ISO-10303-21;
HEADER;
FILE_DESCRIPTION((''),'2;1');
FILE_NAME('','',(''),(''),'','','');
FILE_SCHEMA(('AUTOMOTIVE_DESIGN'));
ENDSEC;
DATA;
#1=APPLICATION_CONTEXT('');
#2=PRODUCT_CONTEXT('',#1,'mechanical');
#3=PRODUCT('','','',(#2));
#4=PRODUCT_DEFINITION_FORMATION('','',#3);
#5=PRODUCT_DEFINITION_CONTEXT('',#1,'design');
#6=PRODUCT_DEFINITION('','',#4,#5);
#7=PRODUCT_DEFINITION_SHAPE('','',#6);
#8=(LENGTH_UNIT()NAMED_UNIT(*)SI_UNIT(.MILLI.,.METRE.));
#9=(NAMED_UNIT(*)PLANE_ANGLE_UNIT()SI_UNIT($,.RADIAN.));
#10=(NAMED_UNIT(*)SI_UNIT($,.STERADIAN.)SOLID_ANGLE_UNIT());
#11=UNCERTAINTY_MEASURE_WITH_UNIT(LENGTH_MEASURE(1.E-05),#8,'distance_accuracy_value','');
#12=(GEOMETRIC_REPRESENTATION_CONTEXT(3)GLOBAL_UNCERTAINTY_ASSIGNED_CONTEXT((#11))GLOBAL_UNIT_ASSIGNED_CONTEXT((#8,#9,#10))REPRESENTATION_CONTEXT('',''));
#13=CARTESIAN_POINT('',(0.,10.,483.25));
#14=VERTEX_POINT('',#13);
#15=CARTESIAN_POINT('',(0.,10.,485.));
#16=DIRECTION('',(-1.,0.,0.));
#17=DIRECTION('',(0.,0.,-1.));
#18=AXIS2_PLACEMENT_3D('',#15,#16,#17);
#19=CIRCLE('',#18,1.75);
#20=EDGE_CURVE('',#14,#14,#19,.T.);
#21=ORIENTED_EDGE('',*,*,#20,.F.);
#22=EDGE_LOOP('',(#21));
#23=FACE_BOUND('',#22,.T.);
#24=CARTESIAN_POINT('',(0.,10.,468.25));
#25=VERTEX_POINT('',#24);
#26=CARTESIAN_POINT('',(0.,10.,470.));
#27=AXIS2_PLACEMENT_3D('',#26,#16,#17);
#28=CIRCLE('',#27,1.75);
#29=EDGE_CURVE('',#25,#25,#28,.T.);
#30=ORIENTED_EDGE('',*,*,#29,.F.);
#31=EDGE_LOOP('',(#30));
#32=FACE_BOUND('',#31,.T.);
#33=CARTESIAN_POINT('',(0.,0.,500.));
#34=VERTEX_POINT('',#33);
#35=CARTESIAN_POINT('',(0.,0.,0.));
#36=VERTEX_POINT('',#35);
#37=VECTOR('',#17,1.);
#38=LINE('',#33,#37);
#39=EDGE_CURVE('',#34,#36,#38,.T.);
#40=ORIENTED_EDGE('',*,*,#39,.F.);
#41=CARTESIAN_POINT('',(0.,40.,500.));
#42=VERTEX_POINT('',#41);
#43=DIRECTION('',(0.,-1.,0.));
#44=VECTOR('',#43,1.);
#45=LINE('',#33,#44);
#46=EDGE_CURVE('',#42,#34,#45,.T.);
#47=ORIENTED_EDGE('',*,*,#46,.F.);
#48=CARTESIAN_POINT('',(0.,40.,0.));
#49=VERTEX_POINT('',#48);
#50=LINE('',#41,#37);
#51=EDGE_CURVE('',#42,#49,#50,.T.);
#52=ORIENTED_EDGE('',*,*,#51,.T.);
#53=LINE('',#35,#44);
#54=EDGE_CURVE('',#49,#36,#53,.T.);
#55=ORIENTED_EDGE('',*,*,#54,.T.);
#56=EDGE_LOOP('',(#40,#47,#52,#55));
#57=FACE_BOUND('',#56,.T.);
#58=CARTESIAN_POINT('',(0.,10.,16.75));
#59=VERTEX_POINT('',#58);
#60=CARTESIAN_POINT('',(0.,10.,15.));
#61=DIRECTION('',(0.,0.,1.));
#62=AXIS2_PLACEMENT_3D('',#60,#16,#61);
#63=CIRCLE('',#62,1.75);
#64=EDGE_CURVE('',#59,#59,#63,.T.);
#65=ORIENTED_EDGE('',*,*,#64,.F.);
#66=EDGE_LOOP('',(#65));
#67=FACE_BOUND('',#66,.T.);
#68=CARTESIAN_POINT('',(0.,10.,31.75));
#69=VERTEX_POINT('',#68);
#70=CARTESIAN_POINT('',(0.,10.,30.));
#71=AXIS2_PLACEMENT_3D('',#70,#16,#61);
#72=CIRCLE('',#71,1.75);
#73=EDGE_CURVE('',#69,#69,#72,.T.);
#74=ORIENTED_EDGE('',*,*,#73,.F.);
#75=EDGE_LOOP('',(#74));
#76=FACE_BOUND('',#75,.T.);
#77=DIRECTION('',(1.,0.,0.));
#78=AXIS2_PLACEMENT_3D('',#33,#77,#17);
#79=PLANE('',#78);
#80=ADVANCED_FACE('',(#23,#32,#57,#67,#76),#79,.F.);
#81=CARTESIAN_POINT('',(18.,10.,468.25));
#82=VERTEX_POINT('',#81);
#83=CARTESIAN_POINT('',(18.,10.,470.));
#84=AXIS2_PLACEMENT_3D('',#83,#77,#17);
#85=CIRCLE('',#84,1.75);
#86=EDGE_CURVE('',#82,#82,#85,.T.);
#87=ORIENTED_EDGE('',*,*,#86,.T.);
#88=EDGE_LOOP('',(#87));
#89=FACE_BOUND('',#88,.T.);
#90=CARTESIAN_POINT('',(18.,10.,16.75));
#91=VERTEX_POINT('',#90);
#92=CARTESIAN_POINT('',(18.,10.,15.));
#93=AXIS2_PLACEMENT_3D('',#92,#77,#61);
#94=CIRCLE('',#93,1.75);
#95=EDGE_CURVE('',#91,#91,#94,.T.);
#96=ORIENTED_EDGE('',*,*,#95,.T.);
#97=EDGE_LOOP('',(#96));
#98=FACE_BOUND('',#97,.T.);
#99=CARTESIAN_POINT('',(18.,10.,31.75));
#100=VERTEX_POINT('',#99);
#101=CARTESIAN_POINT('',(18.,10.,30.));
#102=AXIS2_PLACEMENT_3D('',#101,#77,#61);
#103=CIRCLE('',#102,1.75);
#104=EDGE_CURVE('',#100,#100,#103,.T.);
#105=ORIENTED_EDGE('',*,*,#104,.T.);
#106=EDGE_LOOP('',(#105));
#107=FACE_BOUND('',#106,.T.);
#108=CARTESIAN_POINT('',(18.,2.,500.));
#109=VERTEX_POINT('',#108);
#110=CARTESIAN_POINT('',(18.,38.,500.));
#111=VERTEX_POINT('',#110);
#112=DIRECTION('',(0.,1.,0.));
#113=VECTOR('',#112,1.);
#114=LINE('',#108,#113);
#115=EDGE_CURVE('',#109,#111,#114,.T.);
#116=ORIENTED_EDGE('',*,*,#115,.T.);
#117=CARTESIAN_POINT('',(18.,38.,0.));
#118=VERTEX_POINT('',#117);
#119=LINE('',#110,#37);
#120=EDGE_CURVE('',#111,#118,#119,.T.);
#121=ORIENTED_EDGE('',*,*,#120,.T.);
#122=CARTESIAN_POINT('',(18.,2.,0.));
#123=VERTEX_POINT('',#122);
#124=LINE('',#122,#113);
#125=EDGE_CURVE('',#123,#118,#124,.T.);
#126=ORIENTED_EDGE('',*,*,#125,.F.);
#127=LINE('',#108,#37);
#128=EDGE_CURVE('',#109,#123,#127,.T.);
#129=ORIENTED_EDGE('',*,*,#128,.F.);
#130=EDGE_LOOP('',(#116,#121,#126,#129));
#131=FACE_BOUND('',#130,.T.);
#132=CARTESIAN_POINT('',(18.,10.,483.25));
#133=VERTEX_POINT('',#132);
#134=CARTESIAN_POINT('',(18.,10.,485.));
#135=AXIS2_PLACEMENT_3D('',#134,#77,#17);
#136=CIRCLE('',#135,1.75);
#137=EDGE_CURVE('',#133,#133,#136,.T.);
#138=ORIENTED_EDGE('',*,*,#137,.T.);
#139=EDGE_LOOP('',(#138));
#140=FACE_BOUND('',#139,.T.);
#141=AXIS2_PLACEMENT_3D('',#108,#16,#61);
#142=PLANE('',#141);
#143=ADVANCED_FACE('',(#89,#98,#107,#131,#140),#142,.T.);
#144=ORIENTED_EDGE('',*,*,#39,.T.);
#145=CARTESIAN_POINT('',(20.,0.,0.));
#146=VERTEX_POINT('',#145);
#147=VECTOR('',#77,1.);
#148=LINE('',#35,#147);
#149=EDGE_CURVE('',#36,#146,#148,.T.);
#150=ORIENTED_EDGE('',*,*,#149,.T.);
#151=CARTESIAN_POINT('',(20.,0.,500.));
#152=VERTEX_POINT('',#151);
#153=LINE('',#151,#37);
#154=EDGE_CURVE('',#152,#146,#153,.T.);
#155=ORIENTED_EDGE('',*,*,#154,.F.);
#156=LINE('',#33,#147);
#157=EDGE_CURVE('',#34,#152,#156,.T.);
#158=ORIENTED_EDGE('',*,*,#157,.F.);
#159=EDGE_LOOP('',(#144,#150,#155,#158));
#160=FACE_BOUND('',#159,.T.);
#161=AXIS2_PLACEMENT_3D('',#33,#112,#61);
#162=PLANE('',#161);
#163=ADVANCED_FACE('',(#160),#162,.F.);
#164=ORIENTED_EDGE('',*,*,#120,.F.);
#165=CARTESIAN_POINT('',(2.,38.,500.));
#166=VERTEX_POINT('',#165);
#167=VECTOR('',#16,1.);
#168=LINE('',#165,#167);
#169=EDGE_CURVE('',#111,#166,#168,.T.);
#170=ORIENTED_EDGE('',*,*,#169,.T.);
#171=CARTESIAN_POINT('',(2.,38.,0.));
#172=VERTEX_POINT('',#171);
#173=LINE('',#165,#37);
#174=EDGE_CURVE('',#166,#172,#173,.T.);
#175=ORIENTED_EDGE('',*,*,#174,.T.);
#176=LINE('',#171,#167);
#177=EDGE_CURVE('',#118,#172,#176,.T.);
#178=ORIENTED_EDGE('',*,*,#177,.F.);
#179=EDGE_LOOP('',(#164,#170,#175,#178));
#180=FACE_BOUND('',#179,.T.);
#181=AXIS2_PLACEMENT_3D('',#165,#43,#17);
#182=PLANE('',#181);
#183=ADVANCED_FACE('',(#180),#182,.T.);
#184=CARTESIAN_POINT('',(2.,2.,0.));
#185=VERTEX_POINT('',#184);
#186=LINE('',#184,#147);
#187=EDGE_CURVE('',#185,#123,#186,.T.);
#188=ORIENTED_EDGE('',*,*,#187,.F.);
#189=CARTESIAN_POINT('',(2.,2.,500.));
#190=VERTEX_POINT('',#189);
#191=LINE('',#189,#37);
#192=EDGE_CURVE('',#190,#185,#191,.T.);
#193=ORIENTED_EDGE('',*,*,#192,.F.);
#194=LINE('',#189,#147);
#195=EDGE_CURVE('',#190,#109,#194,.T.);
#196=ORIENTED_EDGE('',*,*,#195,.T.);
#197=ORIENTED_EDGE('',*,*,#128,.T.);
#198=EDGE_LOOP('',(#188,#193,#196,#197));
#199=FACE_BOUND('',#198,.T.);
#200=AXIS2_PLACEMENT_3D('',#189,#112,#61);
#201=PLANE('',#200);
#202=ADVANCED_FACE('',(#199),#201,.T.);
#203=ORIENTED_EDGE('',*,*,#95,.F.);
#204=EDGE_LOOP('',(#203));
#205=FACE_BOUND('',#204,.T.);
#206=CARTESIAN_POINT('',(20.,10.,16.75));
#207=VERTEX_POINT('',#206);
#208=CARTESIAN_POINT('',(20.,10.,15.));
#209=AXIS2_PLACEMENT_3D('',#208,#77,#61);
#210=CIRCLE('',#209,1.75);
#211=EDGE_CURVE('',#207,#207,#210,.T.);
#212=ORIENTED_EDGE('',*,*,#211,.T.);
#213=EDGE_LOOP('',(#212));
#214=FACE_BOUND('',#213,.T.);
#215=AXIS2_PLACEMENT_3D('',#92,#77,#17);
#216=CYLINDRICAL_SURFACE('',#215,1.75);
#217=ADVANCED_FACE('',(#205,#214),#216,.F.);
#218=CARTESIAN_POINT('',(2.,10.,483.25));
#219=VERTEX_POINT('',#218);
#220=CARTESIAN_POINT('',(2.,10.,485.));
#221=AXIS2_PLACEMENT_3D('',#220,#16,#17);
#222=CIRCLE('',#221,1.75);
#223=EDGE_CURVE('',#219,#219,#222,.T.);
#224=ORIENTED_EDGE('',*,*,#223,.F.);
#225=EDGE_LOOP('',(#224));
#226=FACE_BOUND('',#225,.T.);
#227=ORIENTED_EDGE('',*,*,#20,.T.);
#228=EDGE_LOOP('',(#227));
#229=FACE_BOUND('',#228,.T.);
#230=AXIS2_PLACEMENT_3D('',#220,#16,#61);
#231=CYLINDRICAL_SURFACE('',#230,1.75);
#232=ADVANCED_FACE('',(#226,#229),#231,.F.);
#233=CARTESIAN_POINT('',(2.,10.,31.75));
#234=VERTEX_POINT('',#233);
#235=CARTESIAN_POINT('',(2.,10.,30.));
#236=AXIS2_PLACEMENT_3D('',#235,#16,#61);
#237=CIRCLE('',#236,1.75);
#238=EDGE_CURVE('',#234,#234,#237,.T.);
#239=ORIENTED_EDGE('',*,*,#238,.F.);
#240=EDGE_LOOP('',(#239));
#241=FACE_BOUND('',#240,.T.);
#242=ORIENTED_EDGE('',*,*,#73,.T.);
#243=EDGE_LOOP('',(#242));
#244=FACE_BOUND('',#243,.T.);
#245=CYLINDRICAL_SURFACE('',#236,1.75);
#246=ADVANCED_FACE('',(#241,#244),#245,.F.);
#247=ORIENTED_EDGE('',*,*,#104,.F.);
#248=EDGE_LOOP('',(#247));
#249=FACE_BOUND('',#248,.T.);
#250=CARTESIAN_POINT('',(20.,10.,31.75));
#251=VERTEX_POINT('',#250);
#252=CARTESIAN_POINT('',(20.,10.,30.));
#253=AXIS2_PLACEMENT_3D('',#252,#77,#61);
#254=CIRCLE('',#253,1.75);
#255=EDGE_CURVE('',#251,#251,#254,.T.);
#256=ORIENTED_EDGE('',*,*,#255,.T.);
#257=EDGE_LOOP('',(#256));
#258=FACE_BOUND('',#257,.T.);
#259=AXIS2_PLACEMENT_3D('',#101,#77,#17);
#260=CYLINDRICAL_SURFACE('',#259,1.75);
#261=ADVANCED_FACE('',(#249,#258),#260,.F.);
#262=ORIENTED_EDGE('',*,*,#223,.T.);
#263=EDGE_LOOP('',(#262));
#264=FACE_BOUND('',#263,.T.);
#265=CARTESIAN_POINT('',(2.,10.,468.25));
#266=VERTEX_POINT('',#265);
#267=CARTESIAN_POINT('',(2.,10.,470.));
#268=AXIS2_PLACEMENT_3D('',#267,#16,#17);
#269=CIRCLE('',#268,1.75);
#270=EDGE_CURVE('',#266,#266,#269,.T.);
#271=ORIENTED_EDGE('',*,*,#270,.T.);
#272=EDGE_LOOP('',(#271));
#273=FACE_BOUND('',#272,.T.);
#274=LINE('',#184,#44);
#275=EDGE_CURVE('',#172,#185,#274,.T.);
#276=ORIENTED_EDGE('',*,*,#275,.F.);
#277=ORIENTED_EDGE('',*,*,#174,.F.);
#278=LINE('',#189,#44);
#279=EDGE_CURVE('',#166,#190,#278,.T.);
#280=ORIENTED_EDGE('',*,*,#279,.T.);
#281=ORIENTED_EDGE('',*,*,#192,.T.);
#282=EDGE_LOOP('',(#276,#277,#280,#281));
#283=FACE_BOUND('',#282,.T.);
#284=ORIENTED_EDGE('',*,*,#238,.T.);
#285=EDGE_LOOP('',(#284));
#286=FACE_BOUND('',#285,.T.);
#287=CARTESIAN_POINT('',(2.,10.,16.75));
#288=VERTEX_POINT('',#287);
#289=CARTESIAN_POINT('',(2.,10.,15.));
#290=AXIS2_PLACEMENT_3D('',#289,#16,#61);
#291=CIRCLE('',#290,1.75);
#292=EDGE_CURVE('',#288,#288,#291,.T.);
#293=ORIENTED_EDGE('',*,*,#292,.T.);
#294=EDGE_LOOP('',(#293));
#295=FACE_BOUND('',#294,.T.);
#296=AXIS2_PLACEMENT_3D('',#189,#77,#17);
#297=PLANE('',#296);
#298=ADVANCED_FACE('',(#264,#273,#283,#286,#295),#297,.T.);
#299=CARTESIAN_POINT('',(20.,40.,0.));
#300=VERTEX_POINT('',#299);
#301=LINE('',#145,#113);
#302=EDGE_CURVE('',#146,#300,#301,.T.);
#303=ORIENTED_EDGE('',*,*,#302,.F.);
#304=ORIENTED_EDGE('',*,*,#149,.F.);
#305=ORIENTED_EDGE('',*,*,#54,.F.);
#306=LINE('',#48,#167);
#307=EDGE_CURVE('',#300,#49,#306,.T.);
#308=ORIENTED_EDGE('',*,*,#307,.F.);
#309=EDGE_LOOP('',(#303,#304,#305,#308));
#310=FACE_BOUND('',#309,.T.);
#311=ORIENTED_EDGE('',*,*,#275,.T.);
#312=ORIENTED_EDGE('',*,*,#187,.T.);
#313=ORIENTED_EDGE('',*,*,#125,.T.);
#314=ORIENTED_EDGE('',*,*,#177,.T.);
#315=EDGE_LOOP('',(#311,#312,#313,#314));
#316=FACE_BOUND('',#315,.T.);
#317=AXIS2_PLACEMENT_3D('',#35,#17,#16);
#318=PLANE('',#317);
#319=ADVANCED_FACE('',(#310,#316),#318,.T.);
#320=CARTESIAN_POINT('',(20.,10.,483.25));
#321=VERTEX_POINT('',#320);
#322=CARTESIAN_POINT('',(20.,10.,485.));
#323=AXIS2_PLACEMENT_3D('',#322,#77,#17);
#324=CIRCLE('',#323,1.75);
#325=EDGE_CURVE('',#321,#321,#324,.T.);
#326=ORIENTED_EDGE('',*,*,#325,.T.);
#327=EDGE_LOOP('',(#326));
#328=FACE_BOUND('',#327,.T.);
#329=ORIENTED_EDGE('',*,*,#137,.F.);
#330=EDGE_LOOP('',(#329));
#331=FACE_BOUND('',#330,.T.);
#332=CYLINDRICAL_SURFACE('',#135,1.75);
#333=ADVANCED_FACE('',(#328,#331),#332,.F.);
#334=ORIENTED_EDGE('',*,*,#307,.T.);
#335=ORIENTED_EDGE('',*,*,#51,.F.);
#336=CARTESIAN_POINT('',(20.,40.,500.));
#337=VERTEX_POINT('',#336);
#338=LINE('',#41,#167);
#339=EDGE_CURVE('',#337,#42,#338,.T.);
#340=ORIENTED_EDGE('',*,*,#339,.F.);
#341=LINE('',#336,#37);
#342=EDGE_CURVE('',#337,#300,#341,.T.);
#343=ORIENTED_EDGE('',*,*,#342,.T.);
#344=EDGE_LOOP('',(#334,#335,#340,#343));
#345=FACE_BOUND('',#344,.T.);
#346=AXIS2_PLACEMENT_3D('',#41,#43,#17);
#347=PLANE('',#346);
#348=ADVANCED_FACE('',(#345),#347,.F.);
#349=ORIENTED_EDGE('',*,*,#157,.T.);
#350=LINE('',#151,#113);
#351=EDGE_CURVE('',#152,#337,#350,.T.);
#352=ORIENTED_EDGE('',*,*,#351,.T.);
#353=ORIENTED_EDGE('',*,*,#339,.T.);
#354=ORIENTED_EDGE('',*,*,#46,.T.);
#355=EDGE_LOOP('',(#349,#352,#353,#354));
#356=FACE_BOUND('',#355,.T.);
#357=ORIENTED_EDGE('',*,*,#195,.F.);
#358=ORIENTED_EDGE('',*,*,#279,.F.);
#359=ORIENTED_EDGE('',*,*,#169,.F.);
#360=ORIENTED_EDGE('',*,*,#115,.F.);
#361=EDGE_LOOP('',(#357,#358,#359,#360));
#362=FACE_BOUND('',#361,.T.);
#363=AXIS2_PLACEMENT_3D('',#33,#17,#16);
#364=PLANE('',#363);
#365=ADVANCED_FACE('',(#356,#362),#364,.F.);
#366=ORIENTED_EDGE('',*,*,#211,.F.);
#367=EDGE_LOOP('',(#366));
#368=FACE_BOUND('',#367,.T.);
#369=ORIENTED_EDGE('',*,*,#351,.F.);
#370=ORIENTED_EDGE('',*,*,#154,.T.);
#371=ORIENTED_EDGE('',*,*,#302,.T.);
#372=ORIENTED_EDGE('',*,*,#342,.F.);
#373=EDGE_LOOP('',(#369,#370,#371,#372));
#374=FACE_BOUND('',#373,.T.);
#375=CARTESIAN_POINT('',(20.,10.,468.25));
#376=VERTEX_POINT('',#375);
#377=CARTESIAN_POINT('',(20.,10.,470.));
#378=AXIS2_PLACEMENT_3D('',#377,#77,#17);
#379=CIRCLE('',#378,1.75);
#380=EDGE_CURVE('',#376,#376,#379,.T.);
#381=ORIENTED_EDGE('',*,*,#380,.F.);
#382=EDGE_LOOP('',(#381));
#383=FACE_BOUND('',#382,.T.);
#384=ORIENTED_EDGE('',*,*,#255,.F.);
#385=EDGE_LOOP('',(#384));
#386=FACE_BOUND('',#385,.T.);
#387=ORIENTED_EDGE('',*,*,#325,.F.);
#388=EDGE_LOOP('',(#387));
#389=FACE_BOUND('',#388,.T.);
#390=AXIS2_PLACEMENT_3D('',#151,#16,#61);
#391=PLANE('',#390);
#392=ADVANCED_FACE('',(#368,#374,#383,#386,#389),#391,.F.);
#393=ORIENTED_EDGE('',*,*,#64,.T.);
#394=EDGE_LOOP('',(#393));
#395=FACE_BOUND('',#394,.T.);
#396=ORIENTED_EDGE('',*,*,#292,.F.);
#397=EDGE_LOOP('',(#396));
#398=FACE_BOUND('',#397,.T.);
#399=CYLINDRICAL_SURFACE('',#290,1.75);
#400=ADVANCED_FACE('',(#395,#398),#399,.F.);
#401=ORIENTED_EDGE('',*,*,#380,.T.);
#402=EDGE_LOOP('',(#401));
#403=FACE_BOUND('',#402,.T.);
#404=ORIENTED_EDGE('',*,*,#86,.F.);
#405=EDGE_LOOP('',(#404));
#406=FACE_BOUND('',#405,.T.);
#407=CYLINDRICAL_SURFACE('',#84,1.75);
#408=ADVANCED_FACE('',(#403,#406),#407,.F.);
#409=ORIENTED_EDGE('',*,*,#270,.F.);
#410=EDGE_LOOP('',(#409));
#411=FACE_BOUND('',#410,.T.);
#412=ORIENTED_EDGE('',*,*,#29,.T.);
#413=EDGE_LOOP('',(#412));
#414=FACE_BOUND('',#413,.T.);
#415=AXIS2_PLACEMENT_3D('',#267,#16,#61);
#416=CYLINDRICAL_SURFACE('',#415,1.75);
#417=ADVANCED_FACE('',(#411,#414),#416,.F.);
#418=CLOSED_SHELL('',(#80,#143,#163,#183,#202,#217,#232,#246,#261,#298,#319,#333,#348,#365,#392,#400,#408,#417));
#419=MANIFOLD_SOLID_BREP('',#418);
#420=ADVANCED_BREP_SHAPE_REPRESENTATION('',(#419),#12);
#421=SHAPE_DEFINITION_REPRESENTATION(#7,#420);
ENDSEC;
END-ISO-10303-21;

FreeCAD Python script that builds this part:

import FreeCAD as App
import Part
import Sketcher

V = App.Vector
Q = App.Units.Quantity

doc = App.newDocument("Part")
body = doc.addObject("PartDesign::Body", "Body")

# Sketch on XY plane
sketch1 = body.newObject("Sketcher::SketchObject", "Sketch")
sketch1.AttachmentSupport = (doc.getObject("XY_Plane"), [""])
sketch1.MapMode = "FlatFace"
sketch1.addGeometry(Part.LineSegment(V(0, 40, 0), V(0, 0, 0)), False)
sketch1.addGeometry(Part.LineSegment(V(0, 0, 0), V(20, 0, 0)), False)
sketch1.addGeometry(Part.LineSegment(V(20, 0, 0), V(20, 40, 0)), False)
sketch1.addGeometry(Part.LineSegment(V(20, 40, 0), V(0, 40, 0)), False)
sketch1.addGeometry(Part.LineSegment(V(18, 2, 0), V(2, 2, 0)), False)
sketch1.addGeometry(Part.LineSegment(V(2, 2, 0), V(2, 38, 0)), False)
sketch1.addGeometry(Part.LineSegment(V(2, 38, 0), V(18, 38, 0)), False)
sketch1.addGeometry(Part.LineSegment(V(18, 38, 0), V(18, 2, 0)), False)
sketch1.addConstraint(Sketcher.Constraint("Coincident", 0, 2, 1, 1))
sketch1.addConstraint(Sketcher.Constraint("Coincident", 1, 2, 2, 1))
sketch1.addConstraint(Sketcher.Constraint("Coincident", 2, 2, 3, 1))
sketch1.addConstraint(Sketcher.Constraint("Coincident", 3, 2, 0, 1))
sketch1.addConstraint(Sketcher.Constraint("Coincident", 4, 2, 5, 1))
sketch1.addConstraint(Sketcher.Constraint("Coincident", 5, 2, 6, 1))
sketch1.addConstraint(Sketcher.Constraint("Coincident", 6, 2, 7, 1))
sketch1.addConstraint(Sketcher.Constraint("Coincident", 7, 2, 4, 1))
sketch1.addConstraint(Sketcher.Constraint("Vertical", 0))
sketch1.addConstraint(Sketcher.Constraint("Horizontal", 1))
sketch1.addConstraint(Sketcher.Constraint("Vertical", 2))
sketch1.addConstraint(Sketcher.Constraint("Horizontal", 3))
sketch1.addConstraint(Sketcher.Constraint("Horizontal", 4))
sketch1.addConstraint(Sketcher.Constraint("Vertical", 5))
sketch1.addConstraint(Sketcher.Constraint("Horizontal", 6))
sketch1.addConstraint(Sketcher.Constraint("Vertical", 7))
sketch1.addConstraint(Sketcher.Constraint("Coincident", 0, 2, -1, 1))
sketch1.addConstraint(Sketcher.Constraint("DistanceX", 1, 1, 1, 2, Q("20 mm")))
sketch1.addConstraint(Sketcher.Constraint("DistanceX", 4, 2, 4, 1, Q("16 mm")))
sketch1.addConstraint(Sketcher.Constraint("DistanceY", 0, 2, 0, 1, Q("40 mm")))
sketch1.addConstraint(Sketcher.Constraint("DistanceY", 5, 1, 5, 2, Q("36 mm")))
sketch1.addConstraint(Sketcher.Constraint("DistanceX", -1, 1, 4, 2, Q("2 mm")))
sketch1.addConstraint(Sketcher.Constraint("DistanceY", -1, 1, 4, 2, Q("2 mm")))
pad1 = body.newObject("PartDesign::Pad", "Pad")
pad1.Profile = sketch1
pad1.Length = 500

# Sketch on YZ plane
sketch2 = body.newObject("Sketcher::SketchObject", "Sketch001")
sketch2.AttachmentSupport = (doc.getObject("YZ_Plane"), [""])
sketch2.MapMode = "FlatFace"
sketch2.addGeometry(Part.Circle(V(10, 15, 0), V(0, 0, 1), 1.8), False)
sketch2.addGeometry(Part.Circle(V(10, 30, 0), V(0, 0, 1), 1.8), False)
sketch2.addGeometry(Part.Circle(V(10, 485, 0), V(0, 0, 1), 1.8), False)
sketch2.addGeometry(Part.Circle(V(10, 470, 0), V(0, 0, 1), 1.8), False)
sketch2.addConstraint(Sketcher.Constraint("Equal", 0, 1))
sketch2.addConstraint(Sketcher.Constraint("Equal", 1, 2))
sketch2.addConstraint(Sketcher.Constraint("Equal", 2, 3))
sketch2.addConstraint(Sketcher.Constraint("Vertical", 0, 3, 1, 3))
sketch2.addConstraint(Sketcher.Constraint("Vertical", 1, 3, 2, 3))
sketch2.addConstraint(Sketcher.Constraint("Vertical", 2, 3, 3, 3))
sketch2.addConstraint(Sketcher.Constraint("Diameter", 0, Q("3.5 mm")))
sketch2.addConstraint(Sketcher.Constraint("DistanceX", -1, 1, 0, 3, Q("10 mm")))
sketch2.addConstraint(Sketcher.Constraint("DistanceY", -1, 1, 0, 3, Q("15 mm")))
sketch2.addConstraint(Sketcher.Constraint("DistanceY", -1, 1, 1, 3, Q("30 mm")))
sketch2.addConstraint(Sketcher.Constraint("DistanceY", -1, 1, 2, 3, Q("485 mm")))
sketch2.addConstraint(Sketcher.Constraint("DistanceY", -1, 1, 3, 3, Q("470 mm")))
pocket1 = body.newObject("PartDesign::Pocket", "Pocket")
pocket1.Profile = sketch2
pocket1.Length = 2
pocket1.Reversed = True

# Sketch on YZ plane
sketch3 = body.newObject("Sketcher::SketchObject", "Sketch002")
sketch3.AttachmentSupport = (doc.getObject("YZ_Plane"), [""])
sketch3.MapMode = "FlatFace"
sketch3.AttachmentOffset = App.Placement(V(0, 0, 18), App.Rotation())
sketch3.addGeometry(Part.Circle(V(10, 15, 0), V(0, 0, 1), 1.8), False)
sketch3.addGeometry(Part.Circle(V(10, 30, 0), V(0, 0, 1), 1.8), False)
sketch3.addGeometry(Part.Circle(V(10, 485, 0), V(0, 0, 1), 1.8), False)
sketch3.addGeometry(Part.Circle(V(10, 470, 0), V(0, 0, 1), 1.8), False)
sketch3.addConstraint(Sketcher.Constraint("Equal", 0, 1))
sketch3.addConstraint(Sketcher.Constraint("Equal", 1, 2))
sketch3.addConstraint(Sketcher.Constraint("Equal", 2, 3))
sketch3.addConstraint(Sketcher.Constraint("Vertical", 0, 3, 1, 3))
sketch3.addConstraint(Sketcher.Constraint("Vertical", 1, 3, 2, 3))
sketch3.addConstraint(Sketcher.Constraint("Vertical", 2, 3, 3, 3))
sketch3.addConstraint(Sketcher.Constraint("Diameter", 0, Q("3.5 mm")))
sketch3.addConstraint(Sketcher.Constraint("DistanceX", -1, 1, 0, 3, Q("10 mm")))
sketch3.addConstraint(Sketcher.Constraint("DistanceY", -1, 1, 0, 3, Q("15 mm")))
sketch3.addConstraint(Sketcher.Constraint("DistanceY", -1, 1, 1, 3, Q("30 mm")))
sketch3.addConstraint(Sketcher.Constraint("DistanceY", -1, 1, 2, 3, Q("485 mm")))
sketch3.addConstraint(Sketcher.Constraint("DistanceY", -1, 1, 3, 3, Q("470 mm")))
pocket2 = body.newObject("PartDesign::Pocket", "Pocket001")
pocket2.Profile = sketch3
pocket2.Length = 2
pocket2.Reversed = True

doc.recompute()
